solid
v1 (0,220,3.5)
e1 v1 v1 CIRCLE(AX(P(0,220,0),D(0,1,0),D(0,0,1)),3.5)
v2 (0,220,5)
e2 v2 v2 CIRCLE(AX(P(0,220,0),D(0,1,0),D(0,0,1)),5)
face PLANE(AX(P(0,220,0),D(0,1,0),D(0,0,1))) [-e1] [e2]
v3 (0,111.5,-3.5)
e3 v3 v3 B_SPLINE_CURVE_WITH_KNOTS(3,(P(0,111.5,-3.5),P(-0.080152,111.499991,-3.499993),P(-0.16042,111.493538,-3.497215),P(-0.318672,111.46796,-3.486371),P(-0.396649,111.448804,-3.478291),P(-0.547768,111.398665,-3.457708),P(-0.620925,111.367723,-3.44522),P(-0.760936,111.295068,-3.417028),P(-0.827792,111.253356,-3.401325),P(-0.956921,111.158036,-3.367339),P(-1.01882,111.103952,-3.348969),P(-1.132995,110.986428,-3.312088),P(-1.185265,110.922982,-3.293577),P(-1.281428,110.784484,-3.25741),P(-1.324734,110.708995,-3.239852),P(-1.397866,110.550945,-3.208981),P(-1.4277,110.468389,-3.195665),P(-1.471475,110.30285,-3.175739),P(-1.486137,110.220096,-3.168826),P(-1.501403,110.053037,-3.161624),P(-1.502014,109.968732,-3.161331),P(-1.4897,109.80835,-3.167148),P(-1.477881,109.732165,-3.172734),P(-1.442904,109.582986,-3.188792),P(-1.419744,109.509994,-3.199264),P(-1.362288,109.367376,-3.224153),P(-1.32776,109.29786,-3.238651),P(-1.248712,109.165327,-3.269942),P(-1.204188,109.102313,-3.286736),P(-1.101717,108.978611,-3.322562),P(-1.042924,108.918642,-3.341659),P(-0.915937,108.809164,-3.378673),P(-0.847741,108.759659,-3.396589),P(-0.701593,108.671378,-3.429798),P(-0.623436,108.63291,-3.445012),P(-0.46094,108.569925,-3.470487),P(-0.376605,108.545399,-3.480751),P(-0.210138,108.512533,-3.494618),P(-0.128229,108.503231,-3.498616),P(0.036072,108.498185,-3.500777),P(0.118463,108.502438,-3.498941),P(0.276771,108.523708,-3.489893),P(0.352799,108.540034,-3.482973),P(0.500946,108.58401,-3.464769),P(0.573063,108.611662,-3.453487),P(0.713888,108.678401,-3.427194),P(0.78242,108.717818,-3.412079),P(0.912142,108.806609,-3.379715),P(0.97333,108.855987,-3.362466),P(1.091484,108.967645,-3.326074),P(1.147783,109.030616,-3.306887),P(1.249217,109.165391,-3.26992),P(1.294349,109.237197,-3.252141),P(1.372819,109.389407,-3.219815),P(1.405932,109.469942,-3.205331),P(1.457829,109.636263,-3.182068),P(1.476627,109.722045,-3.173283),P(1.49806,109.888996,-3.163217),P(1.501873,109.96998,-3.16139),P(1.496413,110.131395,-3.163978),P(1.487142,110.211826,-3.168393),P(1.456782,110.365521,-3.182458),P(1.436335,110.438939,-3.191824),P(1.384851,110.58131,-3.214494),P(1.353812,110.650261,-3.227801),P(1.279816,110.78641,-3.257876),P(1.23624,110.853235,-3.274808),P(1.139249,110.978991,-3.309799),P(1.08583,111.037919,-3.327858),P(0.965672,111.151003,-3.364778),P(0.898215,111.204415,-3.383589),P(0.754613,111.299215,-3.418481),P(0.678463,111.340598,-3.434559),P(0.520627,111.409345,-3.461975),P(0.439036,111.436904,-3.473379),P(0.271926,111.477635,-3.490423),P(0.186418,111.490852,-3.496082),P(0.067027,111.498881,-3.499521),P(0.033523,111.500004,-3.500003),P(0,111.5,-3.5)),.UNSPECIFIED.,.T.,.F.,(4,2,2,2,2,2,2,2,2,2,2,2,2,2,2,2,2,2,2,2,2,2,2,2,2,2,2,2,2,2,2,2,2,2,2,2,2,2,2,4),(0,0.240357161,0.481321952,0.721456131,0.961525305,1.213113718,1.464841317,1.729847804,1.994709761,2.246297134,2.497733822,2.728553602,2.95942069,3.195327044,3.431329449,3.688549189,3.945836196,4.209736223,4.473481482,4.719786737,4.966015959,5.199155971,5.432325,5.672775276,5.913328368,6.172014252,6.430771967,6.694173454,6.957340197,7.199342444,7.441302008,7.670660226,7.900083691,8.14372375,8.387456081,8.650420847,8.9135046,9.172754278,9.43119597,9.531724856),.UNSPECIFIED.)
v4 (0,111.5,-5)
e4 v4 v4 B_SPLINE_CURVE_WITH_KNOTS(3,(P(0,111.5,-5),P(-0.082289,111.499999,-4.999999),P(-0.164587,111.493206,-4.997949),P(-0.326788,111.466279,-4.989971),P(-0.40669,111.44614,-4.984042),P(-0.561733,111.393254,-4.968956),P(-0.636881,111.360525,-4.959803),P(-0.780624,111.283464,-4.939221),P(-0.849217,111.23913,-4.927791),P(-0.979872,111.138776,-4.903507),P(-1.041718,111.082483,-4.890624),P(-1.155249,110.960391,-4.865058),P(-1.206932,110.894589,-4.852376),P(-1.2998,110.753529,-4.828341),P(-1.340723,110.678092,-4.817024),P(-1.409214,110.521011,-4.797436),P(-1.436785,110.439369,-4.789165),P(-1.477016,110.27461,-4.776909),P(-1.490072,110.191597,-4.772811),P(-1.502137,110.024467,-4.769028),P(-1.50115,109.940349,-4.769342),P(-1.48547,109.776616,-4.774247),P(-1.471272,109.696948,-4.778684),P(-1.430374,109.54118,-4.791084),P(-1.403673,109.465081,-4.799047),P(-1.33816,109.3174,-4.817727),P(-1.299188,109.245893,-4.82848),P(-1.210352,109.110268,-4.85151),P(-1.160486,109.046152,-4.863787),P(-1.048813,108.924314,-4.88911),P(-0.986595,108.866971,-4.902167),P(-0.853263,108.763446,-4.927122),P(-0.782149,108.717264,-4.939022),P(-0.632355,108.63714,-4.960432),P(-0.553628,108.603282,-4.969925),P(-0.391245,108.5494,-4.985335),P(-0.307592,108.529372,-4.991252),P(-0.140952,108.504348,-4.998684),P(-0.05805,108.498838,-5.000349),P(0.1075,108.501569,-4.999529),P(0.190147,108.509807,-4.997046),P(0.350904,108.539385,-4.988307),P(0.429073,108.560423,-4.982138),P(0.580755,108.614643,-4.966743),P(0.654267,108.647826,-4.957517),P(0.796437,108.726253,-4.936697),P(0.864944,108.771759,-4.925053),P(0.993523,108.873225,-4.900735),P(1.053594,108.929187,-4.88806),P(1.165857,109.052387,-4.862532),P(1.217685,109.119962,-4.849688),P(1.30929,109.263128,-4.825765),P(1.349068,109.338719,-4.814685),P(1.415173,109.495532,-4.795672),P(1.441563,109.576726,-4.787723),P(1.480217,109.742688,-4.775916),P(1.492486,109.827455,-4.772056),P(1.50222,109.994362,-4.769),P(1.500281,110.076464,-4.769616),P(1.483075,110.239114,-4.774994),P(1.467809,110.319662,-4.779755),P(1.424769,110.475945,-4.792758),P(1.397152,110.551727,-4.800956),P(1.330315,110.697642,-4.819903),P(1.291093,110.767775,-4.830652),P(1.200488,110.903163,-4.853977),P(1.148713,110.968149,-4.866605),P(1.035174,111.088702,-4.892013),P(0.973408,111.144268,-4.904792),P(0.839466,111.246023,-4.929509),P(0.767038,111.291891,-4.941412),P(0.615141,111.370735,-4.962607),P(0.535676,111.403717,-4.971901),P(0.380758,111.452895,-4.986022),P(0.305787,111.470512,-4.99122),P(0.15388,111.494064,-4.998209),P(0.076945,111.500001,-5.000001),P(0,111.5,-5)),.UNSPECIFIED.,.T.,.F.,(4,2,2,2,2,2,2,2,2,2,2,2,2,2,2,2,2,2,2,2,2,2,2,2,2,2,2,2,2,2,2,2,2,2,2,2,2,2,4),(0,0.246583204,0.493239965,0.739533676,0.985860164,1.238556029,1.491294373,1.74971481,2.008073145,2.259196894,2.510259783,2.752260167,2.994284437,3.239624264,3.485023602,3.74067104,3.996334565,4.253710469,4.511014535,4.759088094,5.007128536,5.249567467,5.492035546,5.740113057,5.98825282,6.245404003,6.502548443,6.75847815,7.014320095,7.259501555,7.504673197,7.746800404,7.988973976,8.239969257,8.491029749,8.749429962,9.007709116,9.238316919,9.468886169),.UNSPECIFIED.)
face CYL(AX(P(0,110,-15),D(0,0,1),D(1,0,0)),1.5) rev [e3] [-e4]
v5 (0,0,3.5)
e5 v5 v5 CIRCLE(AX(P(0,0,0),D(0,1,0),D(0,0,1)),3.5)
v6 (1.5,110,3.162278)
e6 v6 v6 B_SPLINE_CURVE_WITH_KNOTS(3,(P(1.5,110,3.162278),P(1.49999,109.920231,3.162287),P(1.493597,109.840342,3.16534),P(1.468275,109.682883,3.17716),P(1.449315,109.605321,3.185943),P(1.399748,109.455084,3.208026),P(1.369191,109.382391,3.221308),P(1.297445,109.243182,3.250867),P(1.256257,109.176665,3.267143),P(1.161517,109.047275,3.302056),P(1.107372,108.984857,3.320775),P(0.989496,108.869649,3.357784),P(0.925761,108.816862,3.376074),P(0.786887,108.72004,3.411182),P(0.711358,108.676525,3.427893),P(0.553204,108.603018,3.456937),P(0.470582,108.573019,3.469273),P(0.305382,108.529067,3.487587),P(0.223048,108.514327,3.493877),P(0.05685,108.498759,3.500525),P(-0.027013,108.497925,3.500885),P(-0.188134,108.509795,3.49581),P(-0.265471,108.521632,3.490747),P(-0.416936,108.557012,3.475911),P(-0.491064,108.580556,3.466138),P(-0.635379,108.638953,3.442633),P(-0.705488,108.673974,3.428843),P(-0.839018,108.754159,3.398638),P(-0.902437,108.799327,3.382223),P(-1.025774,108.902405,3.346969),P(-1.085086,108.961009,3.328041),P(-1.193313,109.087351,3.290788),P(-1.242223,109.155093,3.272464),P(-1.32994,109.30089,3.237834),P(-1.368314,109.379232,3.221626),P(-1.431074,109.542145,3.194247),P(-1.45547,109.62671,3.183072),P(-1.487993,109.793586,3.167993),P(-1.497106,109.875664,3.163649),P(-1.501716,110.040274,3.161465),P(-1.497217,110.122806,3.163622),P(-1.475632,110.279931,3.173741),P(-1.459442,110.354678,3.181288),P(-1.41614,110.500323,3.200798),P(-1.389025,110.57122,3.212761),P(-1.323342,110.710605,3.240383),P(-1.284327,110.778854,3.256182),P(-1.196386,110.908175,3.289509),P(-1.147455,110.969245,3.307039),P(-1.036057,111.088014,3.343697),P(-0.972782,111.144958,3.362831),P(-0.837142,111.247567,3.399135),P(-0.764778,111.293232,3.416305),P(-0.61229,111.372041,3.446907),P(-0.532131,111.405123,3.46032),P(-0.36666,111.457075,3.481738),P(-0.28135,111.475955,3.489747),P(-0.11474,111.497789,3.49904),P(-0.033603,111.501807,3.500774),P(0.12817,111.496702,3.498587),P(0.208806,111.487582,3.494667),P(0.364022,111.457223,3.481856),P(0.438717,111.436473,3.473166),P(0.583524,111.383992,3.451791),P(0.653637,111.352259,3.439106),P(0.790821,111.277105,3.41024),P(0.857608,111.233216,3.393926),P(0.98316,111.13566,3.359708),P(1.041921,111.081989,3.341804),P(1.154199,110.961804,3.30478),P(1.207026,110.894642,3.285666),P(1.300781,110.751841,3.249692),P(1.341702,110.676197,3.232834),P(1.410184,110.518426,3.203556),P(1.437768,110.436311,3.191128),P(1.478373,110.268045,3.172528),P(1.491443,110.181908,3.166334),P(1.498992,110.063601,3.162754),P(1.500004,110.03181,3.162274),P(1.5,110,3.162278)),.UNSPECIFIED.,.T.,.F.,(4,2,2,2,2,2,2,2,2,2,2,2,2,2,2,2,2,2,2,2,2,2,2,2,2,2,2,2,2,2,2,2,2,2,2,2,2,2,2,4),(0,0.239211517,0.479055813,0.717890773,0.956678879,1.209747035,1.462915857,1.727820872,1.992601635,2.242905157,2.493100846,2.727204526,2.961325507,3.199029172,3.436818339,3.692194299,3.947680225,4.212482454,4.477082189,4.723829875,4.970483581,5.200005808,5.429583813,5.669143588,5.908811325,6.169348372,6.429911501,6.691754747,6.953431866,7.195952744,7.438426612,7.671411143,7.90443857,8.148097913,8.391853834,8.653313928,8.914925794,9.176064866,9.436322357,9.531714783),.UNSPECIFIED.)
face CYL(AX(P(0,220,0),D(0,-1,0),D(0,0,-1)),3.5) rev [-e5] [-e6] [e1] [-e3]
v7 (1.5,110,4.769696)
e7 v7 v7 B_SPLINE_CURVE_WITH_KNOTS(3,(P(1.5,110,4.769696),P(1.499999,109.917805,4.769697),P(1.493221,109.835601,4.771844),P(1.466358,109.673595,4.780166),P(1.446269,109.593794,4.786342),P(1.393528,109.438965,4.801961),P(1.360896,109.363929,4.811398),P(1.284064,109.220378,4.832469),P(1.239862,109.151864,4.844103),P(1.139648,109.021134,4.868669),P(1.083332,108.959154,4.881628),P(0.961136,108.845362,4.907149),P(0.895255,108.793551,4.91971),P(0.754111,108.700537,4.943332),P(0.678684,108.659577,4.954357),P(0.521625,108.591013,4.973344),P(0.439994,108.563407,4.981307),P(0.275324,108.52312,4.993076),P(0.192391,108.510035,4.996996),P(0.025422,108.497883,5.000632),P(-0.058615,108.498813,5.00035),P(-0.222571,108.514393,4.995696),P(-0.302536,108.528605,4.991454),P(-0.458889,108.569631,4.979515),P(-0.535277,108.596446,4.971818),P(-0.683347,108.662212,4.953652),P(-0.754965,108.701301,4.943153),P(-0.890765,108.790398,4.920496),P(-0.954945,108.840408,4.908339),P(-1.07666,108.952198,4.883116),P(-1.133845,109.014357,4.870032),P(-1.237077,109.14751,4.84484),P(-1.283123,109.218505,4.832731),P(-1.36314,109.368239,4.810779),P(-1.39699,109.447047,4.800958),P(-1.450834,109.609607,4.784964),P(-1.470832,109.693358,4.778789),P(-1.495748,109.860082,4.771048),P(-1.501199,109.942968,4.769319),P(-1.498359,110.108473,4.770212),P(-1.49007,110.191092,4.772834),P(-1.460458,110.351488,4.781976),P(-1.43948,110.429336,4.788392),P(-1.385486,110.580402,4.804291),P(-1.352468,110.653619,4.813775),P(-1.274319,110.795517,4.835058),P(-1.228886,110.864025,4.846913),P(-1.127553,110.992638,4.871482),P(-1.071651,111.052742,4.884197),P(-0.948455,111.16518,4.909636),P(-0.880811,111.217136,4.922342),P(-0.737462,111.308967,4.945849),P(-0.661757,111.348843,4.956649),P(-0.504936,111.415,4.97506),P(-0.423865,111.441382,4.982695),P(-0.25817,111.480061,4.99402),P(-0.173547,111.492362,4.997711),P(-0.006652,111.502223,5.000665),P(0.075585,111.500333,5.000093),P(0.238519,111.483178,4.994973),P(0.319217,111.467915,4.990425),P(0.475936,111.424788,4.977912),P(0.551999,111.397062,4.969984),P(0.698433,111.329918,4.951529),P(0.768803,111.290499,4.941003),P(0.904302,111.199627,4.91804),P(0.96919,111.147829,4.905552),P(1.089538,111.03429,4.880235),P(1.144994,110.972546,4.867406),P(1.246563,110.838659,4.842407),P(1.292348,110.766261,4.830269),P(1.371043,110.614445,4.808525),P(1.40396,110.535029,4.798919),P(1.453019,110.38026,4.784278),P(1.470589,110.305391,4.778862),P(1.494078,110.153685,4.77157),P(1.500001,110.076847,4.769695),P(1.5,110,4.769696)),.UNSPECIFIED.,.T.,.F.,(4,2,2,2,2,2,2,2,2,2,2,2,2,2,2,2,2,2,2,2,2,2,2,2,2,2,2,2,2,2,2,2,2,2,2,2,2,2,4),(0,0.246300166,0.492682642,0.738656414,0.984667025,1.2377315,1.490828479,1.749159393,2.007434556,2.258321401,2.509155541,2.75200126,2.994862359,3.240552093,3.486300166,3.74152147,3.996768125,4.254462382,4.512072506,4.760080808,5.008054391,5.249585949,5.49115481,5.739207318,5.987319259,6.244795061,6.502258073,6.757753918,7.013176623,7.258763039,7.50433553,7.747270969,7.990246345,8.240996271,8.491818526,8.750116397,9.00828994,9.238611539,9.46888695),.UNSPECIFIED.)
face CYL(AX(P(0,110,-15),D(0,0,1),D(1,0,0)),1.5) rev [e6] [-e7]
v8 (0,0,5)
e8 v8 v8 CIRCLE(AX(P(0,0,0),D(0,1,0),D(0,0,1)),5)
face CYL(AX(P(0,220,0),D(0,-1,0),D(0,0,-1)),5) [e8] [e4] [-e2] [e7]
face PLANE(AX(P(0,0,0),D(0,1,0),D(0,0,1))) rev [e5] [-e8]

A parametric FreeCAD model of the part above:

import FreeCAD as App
import Part
import Sketcher

doc = App.newDocument("Part")
body = doc.addObject("PartDesign::Body", "Body")

# Sketch on XZ plane
sketch1 = doc.addObject("Sketcher::SketchObject", "Sketch")
body.addObject(sketch1)
sketch1.AttachmentSupport = (doc.XZ_Plane, [""])
sketch1.MapMode = "FlatFace"
sketch1.addGeometry(Part.Circle(App.Vector(0, 0, 0), App.Vector(0, 0, 1), 5), False)
sketch1.addGeometry(Part.Circle(App.Vector(0, 0, 0), App.Vector(0, 0, 1), 3.5), False)
sketch1.addConstraint(Sketcher.Constraint("Coincident", 0, 3, -1, 1))
sketch1.addConstraint(Sketcher.Constraint("Coincident", 1, 3, -1, 1))
sketch1.addConstraint(Sketcher.Constraint("Diameter", 0, 10.0))
sketch1.addConstraint(Sketcher.Constraint("Diameter", 1, 7.0))
pad1 = doc.addObject("PartDesign::Pad", "Pad")
body.addObject(pad1)
pad1.Profile = sketch1
pad1.Length = 220
pad1.Reversed = True

# Sketch on XY plane
sketch2 = doc.addObject("Sketcher::SketchObject", "Sketch001")
body.addObject(sketch2)
sketch2.AttachmentSupport = (doc.XY_Plane, [""])
sketch2.MapMode = "FlatFace"
sketch2.addGeometry(Part.Circle(App.Vector(0, 110, 0), App.Vector(0, 0, 1), 1.5), False)
sketch2.addConstraint(Sketcher.Constraint("PointOnObject", 0, 3, -2))
sketch2.addConstraint(Sketcher.Constraint("Diameter", 0, 3.0))
sketch2.addConstraint(Sketcher.Constraint("DistanceY", -1, 1, 0, 3, 110.0))
pocket1 = doc.addObject("PartDesign::Pocket", "Pocket")
body.addObject(pocket1)
pocket1.Profile = sketch2
pocket1.Length = 30
pocket1.Midplane = True

doc.recompute()
